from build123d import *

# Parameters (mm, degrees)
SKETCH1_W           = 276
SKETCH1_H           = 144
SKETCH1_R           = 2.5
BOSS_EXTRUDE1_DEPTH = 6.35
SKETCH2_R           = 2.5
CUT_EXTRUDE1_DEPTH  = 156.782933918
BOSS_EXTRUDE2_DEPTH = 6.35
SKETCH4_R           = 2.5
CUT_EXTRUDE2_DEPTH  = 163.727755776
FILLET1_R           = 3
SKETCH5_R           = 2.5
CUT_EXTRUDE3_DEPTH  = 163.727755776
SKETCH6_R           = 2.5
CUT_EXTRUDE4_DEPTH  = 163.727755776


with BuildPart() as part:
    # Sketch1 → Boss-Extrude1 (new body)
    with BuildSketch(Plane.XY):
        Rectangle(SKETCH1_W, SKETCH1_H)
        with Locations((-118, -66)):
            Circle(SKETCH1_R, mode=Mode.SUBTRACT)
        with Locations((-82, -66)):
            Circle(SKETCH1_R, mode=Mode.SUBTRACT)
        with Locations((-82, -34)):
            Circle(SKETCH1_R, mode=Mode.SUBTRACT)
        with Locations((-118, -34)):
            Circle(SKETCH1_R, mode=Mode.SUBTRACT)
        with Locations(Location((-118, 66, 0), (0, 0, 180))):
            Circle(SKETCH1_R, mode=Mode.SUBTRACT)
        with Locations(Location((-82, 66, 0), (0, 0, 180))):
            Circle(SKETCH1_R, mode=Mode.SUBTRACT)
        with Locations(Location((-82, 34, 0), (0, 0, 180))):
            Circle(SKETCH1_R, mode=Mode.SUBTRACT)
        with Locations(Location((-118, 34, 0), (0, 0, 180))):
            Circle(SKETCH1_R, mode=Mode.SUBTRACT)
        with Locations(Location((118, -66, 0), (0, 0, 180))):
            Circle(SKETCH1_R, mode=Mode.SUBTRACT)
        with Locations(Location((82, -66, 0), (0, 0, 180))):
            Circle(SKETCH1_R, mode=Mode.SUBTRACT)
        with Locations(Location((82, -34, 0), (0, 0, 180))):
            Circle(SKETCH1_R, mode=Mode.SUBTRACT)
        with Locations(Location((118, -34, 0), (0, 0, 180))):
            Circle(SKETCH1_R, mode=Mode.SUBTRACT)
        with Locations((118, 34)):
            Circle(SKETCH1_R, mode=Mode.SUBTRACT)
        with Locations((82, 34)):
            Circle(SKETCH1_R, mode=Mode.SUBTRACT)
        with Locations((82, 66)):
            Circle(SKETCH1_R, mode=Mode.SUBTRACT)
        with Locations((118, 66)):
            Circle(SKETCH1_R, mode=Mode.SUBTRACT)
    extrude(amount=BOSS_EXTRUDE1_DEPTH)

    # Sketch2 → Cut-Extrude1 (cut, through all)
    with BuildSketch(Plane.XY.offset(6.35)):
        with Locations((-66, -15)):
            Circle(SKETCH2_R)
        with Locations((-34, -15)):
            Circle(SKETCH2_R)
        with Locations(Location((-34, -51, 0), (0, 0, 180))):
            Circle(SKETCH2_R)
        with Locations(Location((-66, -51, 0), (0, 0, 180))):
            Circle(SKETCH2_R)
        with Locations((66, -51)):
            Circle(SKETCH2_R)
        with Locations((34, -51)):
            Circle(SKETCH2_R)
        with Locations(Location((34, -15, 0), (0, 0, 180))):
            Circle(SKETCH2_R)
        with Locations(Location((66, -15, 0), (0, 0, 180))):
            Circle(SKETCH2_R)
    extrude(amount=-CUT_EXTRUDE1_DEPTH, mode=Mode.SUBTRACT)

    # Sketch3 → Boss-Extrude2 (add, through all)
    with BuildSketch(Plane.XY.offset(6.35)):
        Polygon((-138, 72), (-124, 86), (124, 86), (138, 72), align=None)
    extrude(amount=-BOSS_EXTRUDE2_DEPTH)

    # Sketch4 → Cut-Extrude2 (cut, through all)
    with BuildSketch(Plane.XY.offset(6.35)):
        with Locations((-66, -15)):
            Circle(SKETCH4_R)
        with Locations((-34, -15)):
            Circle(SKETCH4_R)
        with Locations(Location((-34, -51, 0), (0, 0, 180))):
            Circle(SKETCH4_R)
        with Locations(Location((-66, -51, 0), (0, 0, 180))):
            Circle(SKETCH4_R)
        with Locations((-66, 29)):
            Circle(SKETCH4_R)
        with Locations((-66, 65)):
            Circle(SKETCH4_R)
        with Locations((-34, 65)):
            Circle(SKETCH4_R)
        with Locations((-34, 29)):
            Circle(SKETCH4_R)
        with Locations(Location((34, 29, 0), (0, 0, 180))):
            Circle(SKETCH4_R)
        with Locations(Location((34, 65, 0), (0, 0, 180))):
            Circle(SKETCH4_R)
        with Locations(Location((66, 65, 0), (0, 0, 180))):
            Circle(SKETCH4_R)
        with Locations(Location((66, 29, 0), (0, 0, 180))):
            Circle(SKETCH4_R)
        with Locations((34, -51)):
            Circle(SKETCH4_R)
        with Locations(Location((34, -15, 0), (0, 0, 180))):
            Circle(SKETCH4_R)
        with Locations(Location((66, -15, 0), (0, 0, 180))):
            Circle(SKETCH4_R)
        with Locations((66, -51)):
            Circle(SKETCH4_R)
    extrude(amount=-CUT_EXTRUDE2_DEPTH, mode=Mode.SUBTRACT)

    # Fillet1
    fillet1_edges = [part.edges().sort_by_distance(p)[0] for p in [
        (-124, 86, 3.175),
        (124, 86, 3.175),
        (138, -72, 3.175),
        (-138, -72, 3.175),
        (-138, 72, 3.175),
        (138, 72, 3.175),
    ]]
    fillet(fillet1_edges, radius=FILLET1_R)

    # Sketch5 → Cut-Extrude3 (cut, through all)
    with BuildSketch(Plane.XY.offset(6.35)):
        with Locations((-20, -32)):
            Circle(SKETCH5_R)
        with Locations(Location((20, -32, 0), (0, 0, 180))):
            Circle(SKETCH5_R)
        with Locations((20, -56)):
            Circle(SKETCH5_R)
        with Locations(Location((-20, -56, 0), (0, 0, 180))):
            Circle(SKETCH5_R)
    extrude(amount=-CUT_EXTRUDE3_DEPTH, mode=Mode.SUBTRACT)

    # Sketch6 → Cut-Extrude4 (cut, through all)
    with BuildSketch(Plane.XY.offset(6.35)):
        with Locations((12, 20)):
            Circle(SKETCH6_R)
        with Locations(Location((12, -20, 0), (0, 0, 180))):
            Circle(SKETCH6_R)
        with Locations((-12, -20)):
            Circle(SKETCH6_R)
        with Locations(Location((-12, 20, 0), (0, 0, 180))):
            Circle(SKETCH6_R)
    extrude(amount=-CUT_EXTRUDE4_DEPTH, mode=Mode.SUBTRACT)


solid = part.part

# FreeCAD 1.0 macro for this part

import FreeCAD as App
import Part
import Sketcher

V = App.Vector
Q = App.Units.Quantity


def edges_at(feature, points):
    """Names of the edges that pass closest to the given points."""
    edges = feature.Shape.Edges
    near = lambda p: min(range(len(edges)), key=lambda i: edges[i].distToShape(Part.Vertex(*p))[0])
    return sorted({f"Edge{near(p) + 1}" for p in points})


def add_polygon(sketch, points):
    """Adds a closed chain of lines whose ends are joined by coincident constraints."""
    first, n = sketch.GeometryCount, len(points)
    for a, b in zip(points, points[1:] + points[:1]):
        sketch.addGeometry(Part.LineSegment(App.Vector(*a, 0), App.Vector(*b, 0)), False)
    for i in range(n):
        sketch.addConstraint(Sketcher.Constraint("Coincident", first + i, 2, first + (i + 1) % n, 1))

doc = App.newDocument("Part")
body = doc.addObject("PartDesign::Body", "Body")

# Sketch on XY plane
sketch1 = doc.addObject("Sketcher::SketchObject", "Sketch")
body.addObject(sketch1)
sketch1.AttachmentSupport = (doc.XY_Plane, [""])
sketch1.MapMode = "FlatFace"
add_polygon(sketch1, [(-138, 72), (-138, -72), (138, -72), (138, 72)])  # lines 0-3
sketch1.addGeometry(Part.Circle(V(-118, -66, 0), V(0, 0, 1), 2.5), False)  # 4
sketch1.addGeometry(Part.Circle(V(-82, -66, 0), V(0, 0, 1), 2.5), False)  # 5
sketch1.addGeometry(Part.Circle(V(-118, -34, 0), V(0, 0, 1), 2.5), False)  # 6
sketch1.addGeometry(Part.Circle(V(-82, -34, 0), V(0, 0, 1), 2.5), False)  # 7
sketch1.addGeometry(Part.Circle(V(82, -66, 0), V(0, 0, 1), 2.5), False)  # 8
sketch1.addGeometry(Part.Circle(V(118, -66, 0), V(0, 0, 1), 2.5), False)  # 9
sketch1.addGeometry(Part.Circle(V(82, -34, 0), V(0, 0, 1), 2.5), False)  # 10
sketch1.addGeometry(Part.Circle(V(118, -34, 0), V(0, 0, 1), 2.5), False)  # 11
sketch1.addGeometry(Part.Circle(V(-118, 34, 0), V(0, 0, 1), 2.5), False)  # 12
sketch1.addGeometry(Part.Circle(V(-82, 34, 0), V(0, 0, 1), 2.5), False)  # 13
sketch1.addGeometry(Part.Circle(V(-118, 66, 0), V(0, 0, 1), 2.5), False)  # 14
sketch1.addGeometry(Part.Circle(V(-82, 66, 0), V(0, 0, 1), 2.5), False)  # 15
sketch1.addGeometry(Part.Circle(V(82, 34, 0), V(0, 0, 1), 2.5), False)  # 16
sketch1.addGeometry(Part.Circle(V(118, 34, 0), V(0, 0, 1), 2.5), False)  # 17
sketch1.addGeometry(Part.Circle(V(82, 66, 0), V(0, 0, 1), 2.5), False)  # 18
sketch1.addGeometry(Part.Circle(V(118, 66, 0), V(0, 0, 1), 2.5), False)  # 19
sketch1.addConstraint(Sketcher.Constraint("Vertical", 0))
sketch1.addConstraint(Sketcher.Constraint("Horizontal", 1))
sketch1.addConstraint(Sketcher.Constraint("Vertical", 2))
sketch1.addConstraint(Sketcher.Constraint("Horizontal", 3))
sketch1.addConstraint(Sketcher.Constraint("Equal", 4, 5))
sketch1.addConstraint(Sketcher.Constraint("Equal", 5, 6))
sketch1.addConstraint(Sketcher.Constraint("Equal", 6, 7))
sketch1.addConstraint(Sketcher.Constraint("Equal", 7, 8))
sketch1.addConstraint(Sketcher.Constraint("Equal", 8, 9))
sketch1.addConstraint(Sketcher.Constraint("Equal", 9, 10))
sketch1.addConstraint(Sketcher.Constraint("Equal", 10, 11))
sketch1.addConstraint(Sketcher.Constraint("Equal", 11, 12))
sketch1.addConstraint(Sketcher.Constraint("Equal", 12, 13))
sketch1.addConstraint(Sketcher.Constraint("Equal", 13, 14))
sketch1.addConstraint(Sketcher.Constraint("Equal", 14, 15))
sketch1.addConstraint(Sketcher.Constraint("Equal", 15, 16))
sketch1.addConstraint(Sketcher.Constraint("Equal", 16, 17))
sketch1.addConstraint(Sketcher.Constraint("Equal", 17, 18))
sketch1.addConstraint(Sketcher.Constraint("Equal", 18, 19))
sketch1.addConstraint(Sketcher.Constraint("Symmetric", 11, 3, 12, 3, -1, 1))
sketch1.addConstraint(Sketcher.Constraint("Symmetric", 10, 3, 13, 3, -1, 1))
sketch1.addConstraint(Sketcher.Constraint("Symmetric", 9, 3, 14, 3, -1, 1))
sketch1.addConstraint(Sketcher.Constraint("Symmetric", 8, 3, 15, 3, -1, 1))
sketch1.addConstraint(Sketcher.Constraint("Symmetric", 7, 3, 16, 3, -1, 1))
sketch1.addConstraint(Sketcher.Constraint("Symmetric", 6, 3, 17, 3, -1, 1))
sketch1.addConstraint(Sketcher.Constraint("Symmetric", 5, 3, 18, 3, -1, 1))
sketch1.addConstraint(Sketcher.Constraint("Symmetric", 4, 3, 19, 3, -1, 1))
sketch1.addConstraint(Sketcher.Constraint("Symmetric", 0, 2, 2, 2, -1, 1))
sketch1.addConstraint(Sketcher.Constraint("Symmetric", 5, 3, 8, 3, -2))
sketch1.addConstraint(Sketcher.Constraint("Symmetric", 4, 3, 9, 3, -2))
sketch1.addConstraint(Sketcher.Constraint("Symmetric", 7, 3, 10, 3, -2))
sketch1.addConstraint(Sketcher.Constraint("Symmetric", 6, 3, 11, 3, -2))
sketch1.addConstraint(Sketcher.Constraint("Horizontal", 4, 3, 5, 3))
sketch1.addConstraint(Sketcher.Constraint("Horizontal", 6, 3, 7, 3))
sketch1.addConstraint(Sketcher.Constraint("Vertical", 4, 3, 6, 3))
sketch1.addConstraint(Sketcher.Constraint("Vertical", 5, 3, 7, 3))
sketch1.addConstraint(Sketcher.Constraint("Diameter", 4, Q("5 mm")))
sketch1.addConstraint(Sketcher.Constraint("DistanceX", 1, 1, 1, 2, Q("276 mm")))
sketch1.addConstraint(Sketcher.Constraint("DistanceY", 0, 2, 0, 1, Q("144 mm")))
sketch1.addConstraint(Sketcher.Constraint("DistanceX", 4, 3, -1, 1, Q("118 mm")))
sketch1.addConstraint(Sketcher.Constraint("DistanceY", 4, 3, -1, 1, Q("66 mm")))
sketch1.addConstraint(Sketcher.Constraint("DistanceX", 5, 3, -1, 1, Q("82 mm")))
sketch1.addConstraint(Sketcher.Constraint("DistanceY", 6, 3, -1, 1, Q("34 mm")))
pad1 = doc.addObject("PartDesign::Pad", "Pad")
body.addObject(pad1)
pad1.Profile = sketch1
pad1.Length = 6.35

# Sketch on XY plane
sketch2 = doc.addObject("Sketcher::SketchObject", "Sketch001")
body.addObject(sketch2)
sketch2.AttachmentSupport = (doc.XY_Plane, [""])
sketch2.MapMode = "FlatFace"
sketch2.AttachmentOffset = App.Placement(V(0, 0, 6.35), App.Rotation())
sketch2.addGeometry(Part.Circle(V(-66, -15, 0), V(0, 0, 1), 2.5), False)
sketch2.addGeometry(Part.Circle(V(-34, -15, 0), V(0, 0, 1), 2.5), False)
sketch2.addGeometry(Part.Circle(V(-34, -51, 0), V(0, 0, 1), 2.5), False)
sketch2.addGeometry(Part.Circle(V(-66, -51, 0), V(0, 0, 1), 2.5), False)
sketch2.addGeometry(Part.Circle(V(66, -51, 0), V(0, 0, 1), 2.5), False)
sketch2.addGeometry(Part.Circle(V(34, -51, 0), V(0, 0, 1), 2.5), False)
sketch2.addGeometry(Part.Circle(V(34, -15, 0), V(0, 0, 1), 2.5), False)
sketch2.addGeometry(Part.Circle(V(66, -15, 0), V(0, 0, 1), 2.5), False)
sketch2.addConstraint(Sketcher.Constraint("Equal", 0, 1))
sketch2.addConstraint(Sketcher.Constraint("Equal", 1, 2))
sketch2.addConstraint(Sketcher.Constraint("Equal", 2, 3))
sketch2.addConstraint(Sketcher.Constraint("Equal", 3, 4))
sketch2.addConstraint(Sketcher.Constraint("Equal", 4, 5))
sketch2.addConstraint(Sketcher.Constraint("Equal", 5, 6))
sketch2.addConstraint(Sketcher.Constraint("Equal", 6, 7))
sketch2.addConstraint(Sketcher.Constraint("Symmetric", 3, 3, 4, 3, -2))
sketch2.addConstraint(Sketcher.Constraint("Symmetric", 2, 3, 5, 3, -2))
sketch2.addConstraint(Sketcher.Constraint("Symmetric", 1, 3, 6, 3, -2))
sketch2.addConstraint(Sketcher.Constraint("Symmetric", 0, 3, 7, 3, -2))
sketch2.addConstraint(Sketcher.Constraint("Horizontal", 0, 3, 1, 3))
sketch2.addConstraint(Sketcher.Constraint("Horizontal", 2, 3, 3, 3))
sketch2.addConstraint(Sketcher.Constraint("Vertical", 1, 3, 2, 3))
sketch2.addConstraint(Sketcher.Constraint("Vertical", 0, 3, 3, 3))
sketch2.addConstraint(Sketcher.Constraint("Diameter", 0, Q("5 mm")))
sketch2.addConstraint(Sketcher.Constraint("DistanceX", 0, 3, -1, 1, Q("66 mm")))
sketch2.addConstraint(Sketcher.Constraint("DistanceY", 0, 3, -1, 1, Q("15 mm")))
sketch2.addConstraint(Sketcher.Constraint("DistanceX", 1, 3, -1, 1, Q("34 mm")))
sketch2.addConstraint(Sketcher.Constraint("DistanceY", 2, 3, -1, 1, Q("51 mm")))
pocket1 = doc.addObject("PartDesign::Pocket", "Pocket")
body.addObject(pocket1)
pocket1.Profile = sketch2
pocket1.Type = "ThroughAll"

# Sketch on XY plane
sketch3 = doc.addObject("Sketcher::SketchObject", "Sketch002")
body.addObject(sketch3)
sketch3.AttachmentSupport = (doc.XY_Plane, [""])
sketch3.MapMode = "FlatFace"
sketch3.AttachmentOffset = App.Placement(V(0, 0, 6.35), App.Rotation())
add_polygon(sketch3, [(-124, 86), (-138, 72), (138, 72), (124, 86)])  # lines 0-3
sketch3.addConstraint(Sketcher.Constraint("Horizontal", 1))
sketch3.addConstraint(Sketcher.Constraint("Horizontal", 3))
sketch3.addConstraint(Sketcher.Constraint("Perpendicular", 0, 2))
sketch3.addConstraint(Sketcher.Constraint("Equal", 0, 2))
sketch3.addConstraint(Sketcher.Constraint("DistanceX", 1, 1, 1, 2, Q("276 mm")))
sketch3.addConstraint(Sketcher.Constraint("DistanceX", 3, 2, 3, 1, Q("248 mm")))
sketch3.addConstraint(Sketcher.Constraint("DistanceX", 0, 2, -1, 1, Q("138 mm")))
sketch3.addConstraint(Sketcher.Constraint("DistanceY", -1, 1, 0, 2, Q("72 mm")))
pad2 = doc.addObject("PartDesign::Pad", "Pad001")
body.addObject(pad2)
pad2.Profile = sketch3
pad2.Length = 6.35
pad2.Reversed = True

# Sketch on XY plane
sketch4 = doc.addObject("Sketcher::SketchObject", "Sketch003")
body.addObject(sketch4)
sketch4.AttachmentSupport = (doc.XY_Plane, [""])
sketch4.MapMode = "FlatFace"
sketch4.AttachmentOffset = App.Placement(V(0, 0, 6.35), App.Rotation())
sketch4.addGeometry(Part.Circle(V(-66, -15, 0), V(0, 0, 1), 2.5), False)
sketch4.addGeometry(Part.Circle(V(-34, -15, 0), V(0, 0, 1), 2.5), False)
sketch4.addGeometry(Part.Circle(V(-34, -51, 0), V(0, 0, 1), 2.5), False)
sketch4.addGeometry(Part.Circle(V(-66, -51, 0), V(0, 0, 1), 2.5), False)
sketch4.addGeometry(Part.Circle(V(-66, 29, 0), V(0, 0, 1), 2.5), False)
sketch4.addGeometry(Part.Circle(V(-66, 65, 0), V(0, 0, 1), 2.5), False)
sketch4.addGeometry(Part.Circle(V(-34, 65, 0), V(0, 0, 1), 2.5), False)
sketch4.addGeometry(Part.Circle(V(-34, 29, 0), V(0, 0, 1), 2.5), False)
sketch4.addGeometry(Part.Circle(V(34, 29, 0), V(0, 0, 1), 2.5), False)
sketch4.addGeometry(Part.Circle(V(34, 65, 0), V(0, 0, 1), 2.5), False)
sketch4.addGeometry(Part.Circle(V(66, 65, 0), V(0, 0, 1), 2.5), False)
sketch4.addGeometry(Part.Circle(V(66, 29, 0), V(0, 0, 1), 2.5), False)
sketch4.addGeometry(Part.Circle(V(34, -51, 0), V(0, 0, 1), 2.5), False)
sketch4.addGeometry(Part.Circle(V(34, -15, 0), V(0, 0, 1), 2.5), False)
sketch4.addGeometry(Part.Circle(V(66, -15, 0), V(0, 0, 1), 2.5), False)
sketch4.addGeometry(Part.Circle(V(66, -51, 0), V(0, 0, 1), 2.5), False)
sketch4.addConstraint(Sketcher.Constraint("Equal", 0, 1))
sketch4.addConstraint(Sketcher.Constraint("Equal", 1, 2))
sketch4.addConstraint(Sketcher.Constraint("Equal", 2, 3))
sketch4.addConstraint(Sketcher.Constraint("Equal", 3, 4))
sketch4.addConstraint(Sketcher.Constraint("Equal", 4, 5))
sketch4.addConstraint(Sketcher.Constraint("Equal", 5, 6))
sketch4.addConstraint(Sketcher.Constraint("Equal", 6, 7))
sketch4.addConstraint(Sketcher.Constraint("Equal", 7, 8))
sketch4.addConstraint(Sketcher.Constraint("Equal", 8, 9))
sketch4.addConstraint(Sketcher.Constraint("Equal", 9, 10))
sketch4.addConstraint(Sketcher.Constraint("Equal", 10, 11))
sketch4.addConstraint(Sketcher.Constraint("Equal", 11, 12))
sketch4.addConstraint(Sketcher.Constraint("Equal", 12, 13))
sketch4.addConstraint(Sketcher.Constraint("Equal", 13, 14))
sketch4.addConstraint(Sketcher.Constraint("Equal", 14, 15))
sketch4.addConstraint(Sketcher.Constraint("Symmetric", 7, 3, 8, 3, -2))
sketch4.addConstraint(Sketcher.Constraint("Symmetric", 6, 3, 9, 3, -2))
sketch4.addConstraint(Sketcher.Constraint("Symmetric", 5, 3, 10, 3, -2))
sketch4.addConstraint(Sketcher.Constraint("Symmetric", 4, 3, 11, 3, -2))
sketch4.addConstraint(Sketcher.Constraint("Symmetric", 2, 3, 12, 3, -2))
sketch4.addConstraint(Sketcher.Constraint("Symmetric", 1, 3, 13, 3, -2))
sketch4.addConstraint(Sketcher.Constraint("Symmetric", 0, 3, 14, 3, -2))
sketch4.addConstraint(Sketcher.Constraint("Symmetric", 3, 3, 15, 3, -2))
sketch4.addConstraint(Sketcher.Constraint("Horizontal", 0, 3, 1, 3))
sketch4.addConstraint(Sketcher.Constraint("Horizontal", 2, 3, 3, 3))
sketch4.addConstraint(Sketcher.Constraint("Horizontal", 5, 3, 6, 3))
sketch4.addConstraint(Sketcher.Constraint("Horizontal", 4, 3, 7, 3))
sketch4.addConstraint(Sketcher.Constraint("Vertical", 1, 3, 2, 3))
sketch4.addConstraint(Sketcher.Constraint("Vertical", 0, 3, 3, 3))
sketch4.addConstraint(Sketcher.Constraint("Vertical", 3, 3, 4, 3))
sketch4.addConstraint(Sketcher.Constraint("Vertical", 4, 3, 5, 3))
sketch4.addConstraint(Sketcher.Constraint("Vertical", 2, 3, 6, 3))
sketch4.addConstraint(Sketcher.Constraint("Vertical", 6, 3, 7, 3))
sketch4.addConstraint(Sketcher.Constraint("Diameter", 0, Q("5 mm")))
sketch4.addConstraint(Sketcher.Constraint("DistanceX", 0, 3, -1, 1, Q("66 mm")))
sketch4.addConstraint(Sketcher.Constraint("DistanceY", 0, 3, -1, 1, Q("15 mm")))
sketch4.addConstraint(Sketcher.Constraint("DistanceX", 1, 3, -1, 1, Q("34 mm")))
sketch4.addConstraint(Sketcher.Constraint("DistanceY", 2, 3, -1, 1, Q("51 mm")))
sketch4.addConstraint(Sketcher.Constraint("DistanceY", -1, 1, 4, 3, Q("29 mm")))
sketch4.addConstraint(Sketcher.Constraint("DistanceY", -1, 1, 5, 3, Q("65 mm")))
pocket2 = doc.addObject("PartDesign::Pocket", "Pocket001")
body.addObject(pocket2)
pocket2.Profile = sketch4
pocket2.Type = "ThroughAll"
doc.recompute()

fillet = doc.addObject("PartDesign::Fillet", "Fillet")
body.addObject(fillet)
fillet.Base = (pocket2, edges_at(pocket2, [
    (-124, 86, 3.175),
    (124, 86, 3.175),
    (138, -72, 3.175),
    (-138, -72, 3.175),
    (-138, 72, 3.175),
    (138, 72, 3.175),
]))
fillet.Radius = 3

# Sketch on XY plane
sketch5 = doc.addObject("Sketcher::SketchObject", "Sketch004")
body.addObject(sketch5)
sketch5.AttachmentSupport = (doc.XY_Plane, [""])
sketch5.MapMode = "FlatFace"
sketch5.AttachmentOffset = App.Placement(V(0, 0, 6.35), App.Rotation())
sketch5.addGeometry(Part.Circle(V(-20, -32, 0), V(0, 0, 1), 2.5), False)
sketch5.addGeometry(Part.Circle(V(20, -32, 0), V(0, 0, 1), 2.5), False)
sketch5.addGeometry(Part.Circle(V(20, -56, 0), V(0, 0, 1), 2.5), False)
sketch5.addGeometry(Part.Circle(V(-20, -56, 0), V(0, 0, 1), 2.5), False)
sketch5.addConstraint(Sketcher.Constraint("Equal", 0, 1))
sketch5.addConstraint(Sketcher.Constraint("Equal", 1, 2))
sketch5.addConstraint(Sketcher.Constraint("Equal", 2, 3))
sketch5.addConstraint(Sketcher.Constraint("Symmetric", 0, 3, 1, 3, -2))
sketch5.addConstraint(Sketcher.Constraint("Symmetric", 2, 3, 3, 3, -2))
sketch5.addConstraint(Sketcher.Constraint("Vertical", 1, 3, 2, 3))
sketch5.addConstraint(Sketcher.Constraint("Diameter", 0, Q("5 mm")))
sketch5.addConstraint(Sketcher.Constraint("DistanceX", 0, 3, -1, 1, Q("20 mm")))
sketch5.addConstraint(Sketcher.Constraint("DistanceY", 0, 3, -1, 1, Q("32 mm")))
sketch5.addConstraint(Sketcher.Constraint("DistanceY", 2, 3, -1, 1, Q("56 mm")))
pocket3 = doc.addObject("PartDesign::Pocket", "Pocket002")
body.addObject(pocket3)
pocket3.Profile = sketch5
pocket3.Type = "ThroughAll"

# Sketch on XY plane
sketch6 = doc.addObject("Sketcher::SketchObject", "Sketch005")
body.addObject(sketch6)
sketch6.AttachmentSupport = (doc.XY_Plane, [""])
sketch6.MapMode = "FlatFace"
sketch6.AttachmentOffset = App.Placement(V(0, 0, 6.35), App.Rotation())
sketch6.addGeometry(Part.Circle(V(12, 20, 0), V(0, 0, 1), 2.5), False)
sketch6.addGeometry(Part.Circle(V(12, -20, 0), V(0, 0, 1), 2.5), False)
sketch6.addGeometry(Part.Circle(V(-12, -20, 0), V(0, 0, 1), 2.5), False)
sketch6.addGeometry(Part.Circle(V(-12, 20, 0), V(0, 0, 1), 2.5), False)
sketch6.addConstraint(Sketcher.Constraint("Equal", 0, 1))
sketch6.addConstraint(Sketcher.Constraint("Equal", 1, 2))
sketch6.addConstraint(Sketcher.Constraint("Equal", 2, 3))
sketch6.addConstraint(Sketcher.Constraint("Symmetric", 0, 3, 2, 3, -1, 1))
sketch6.addConstraint(Sketcher.Constraint("Symmetric", 1, 3, 3, 3, -1, 1))
sketch6.addConstraint(Sketcher.Constraint("Symmetric", 1, 3, 2, 3, -2))
sketch6.addConstraint(Sketcher.Constraint("Diameter", 0, Q("5 mm")))
sketch6.addConstraint(Sketcher.Constraint("DistanceX", -1, 1, 0, 3, Q("12 mm")))
sketch6.addConstraint(Sketcher.Constraint("DistanceY", -1, 1, 0, 3, Q("20 mm")))
pocket4 = doc.addObject("PartDesign::Pocket", "Pocket003")
body.addObject(pocket4)
pocket4.Profile = sketch6
pocket4.Type = "ThroughAll"

doc.recompute()
